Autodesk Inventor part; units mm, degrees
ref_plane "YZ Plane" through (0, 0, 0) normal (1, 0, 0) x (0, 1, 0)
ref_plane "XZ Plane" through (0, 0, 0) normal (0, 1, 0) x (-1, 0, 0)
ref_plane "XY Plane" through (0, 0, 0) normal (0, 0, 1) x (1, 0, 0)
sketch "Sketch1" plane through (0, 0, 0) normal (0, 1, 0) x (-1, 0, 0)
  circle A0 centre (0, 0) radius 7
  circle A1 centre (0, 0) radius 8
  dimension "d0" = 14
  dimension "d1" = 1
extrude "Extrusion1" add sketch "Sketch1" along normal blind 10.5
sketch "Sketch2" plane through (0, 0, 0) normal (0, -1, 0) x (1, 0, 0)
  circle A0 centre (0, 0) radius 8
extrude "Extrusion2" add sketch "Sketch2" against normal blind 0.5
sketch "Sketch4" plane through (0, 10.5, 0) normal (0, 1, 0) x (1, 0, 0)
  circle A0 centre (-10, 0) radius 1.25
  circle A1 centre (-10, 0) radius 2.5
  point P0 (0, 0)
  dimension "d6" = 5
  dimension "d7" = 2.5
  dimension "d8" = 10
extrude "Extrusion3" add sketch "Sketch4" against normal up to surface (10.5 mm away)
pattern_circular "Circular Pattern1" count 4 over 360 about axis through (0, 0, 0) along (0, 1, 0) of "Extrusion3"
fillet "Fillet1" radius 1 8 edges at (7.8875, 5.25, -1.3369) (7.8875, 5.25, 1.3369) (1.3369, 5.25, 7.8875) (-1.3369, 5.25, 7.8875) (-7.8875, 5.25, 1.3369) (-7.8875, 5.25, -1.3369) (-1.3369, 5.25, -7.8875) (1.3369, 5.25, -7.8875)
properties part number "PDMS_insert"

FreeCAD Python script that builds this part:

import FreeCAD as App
import Part
import Sketcher
from FreeCAD import Vector
Q = App.Units.Quantity


def edges_at(feature, points):
    """Names of the edges that pass closest to the given points."""
    edges = feature.Shape.Edges
    near = lambda p: min(range(len(edges)), key=lambda i: edges[i].distToShape(Part.Vertex(*p))[0])
    return sorted({f"Edge{near(p) + 1}" for p in points})

doc = App.newDocument("Part")
body = doc.addObject("PartDesign::Body", "Body")

# Sketch on XZ plane
sketch1 = body.newObject("Sketcher::SketchObject", "Sketch")
sketch1.AttachmentSupport = (doc.getObject("XZ_Plane"), [""])
sketch1.MapMode = "FlatFace"
sketch1.addGeometry([
    Part.Circle(Vector(0, 0, 0), Vector(0, 0, 1), 8),
    Part.Circle(Vector(0, 0, 0), Vector(0, 0, 1), 7),
], False)
sketch1.addConstraint([
    Sketcher.Constraint("Coincident", 0, 3, -1, 1),
    Sketcher.Constraint("Coincident", 1, 3, -1, 1),
    Sketcher.Constraint("Diameter", 1, Q("14 mm")),
    Sketcher.Constraint("Diameter", 0, Q("16 mm")),
])
pad1 = body.newObject("PartDesign::Pad", "Pad")
pad1.Profile = sketch1
pad1.Length = 10.5
pad1.Reversed = True

# Sketch on XZ plane
sketch2 = body.newObject("Sketcher::SketchObject", "Sketch001")
sketch2.AttachmentSupport = (doc.getObject("XZ_Plane"), [""])
sketch2.MapMode = "FlatFace"
sketch2.addGeometry(Part.Circle(Vector(0, 0, 0), Vector(0, 0, 1), 8), False)
sketch2.addConstraint([
    Sketcher.Constraint("Coincident", 0, 3, -1, 1),
    Sketcher.Constraint("Diameter", 0, Q("16 mm")),
])
pad2 = body.newObject("PartDesign::Pad", "Pad001")
pad2.Profile = sketch2
pad2.Length = 0.5
pad2.Reversed = True

# Sketch on XZ plane
sketch3 = body.newObject("Sketcher::SketchObject", "Sketch002")
sketch3.AttachmentSupport = (doc.getObject("XZ_Plane"), [""])
sketch3.MapMode = "FlatFace"
sketch3.AttachmentOffset = App.Placement(Vector(0, 0, -10.5), App.Rotation())
sketch3.addGeometry([
    Part.Circle(Vector(-10, 0, 0), Vector(0, 0, 1), 2.5),
    Part.Circle(Vector(-10, 0, 0), Vector(0, 0, 1), 1.25),
], False)
sketch3.addConstraint([
    Sketcher.Constraint("Coincident", 1, 3, 0, 3),
    Sketcher.Constraint("PointOnObject", 0, 3, -1),
    Sketcher.Constraint("Diameter", 0, Q("5 mm")),
    Sketcher.Constraint("Diameter", 1, Q("2.5 mm")),
    Sketcher.Constraint("DistanceX", 0, 3, -1, 1, Q("10 mm")),
])
pad3 = body.newObject("PartDesign::Pad", "Pad002")
pad3.Profile = sketch3
pad3.Length = 10.5
doc.recompute()

polarpattern = body.newObject("PartDesign::PolarPattern", "PolarPattern")
polarpattern.Originals = [pad3]
polarpattern.Axis = (doc.getObject("Y_Axis"), [""])
polarpattern.Angle = 360
polarpattern.Occurrences = 4
body.Tip = polarpattern
doc.recompute()

fillet = body.newObject("PartDesign::Fillet", "Fillet")
fillet.Base = (polarpattern, edges_at(polarpattern, [
    (7.888, 5.25, -1.337),
    (7.888, 5.25, 1.337),
    (1.337, 5.25, 7.888),
    (-1.337, 5.25, 7.888),
    (-7.888, 5.25, 1.337),
    (-7.888, 5.25, -1.337),
    (-1.337, 5.25, -7.888),
    (1.337, 5.25, -7.888),
]))
fillet.Radius = 1

doc.recompute()
